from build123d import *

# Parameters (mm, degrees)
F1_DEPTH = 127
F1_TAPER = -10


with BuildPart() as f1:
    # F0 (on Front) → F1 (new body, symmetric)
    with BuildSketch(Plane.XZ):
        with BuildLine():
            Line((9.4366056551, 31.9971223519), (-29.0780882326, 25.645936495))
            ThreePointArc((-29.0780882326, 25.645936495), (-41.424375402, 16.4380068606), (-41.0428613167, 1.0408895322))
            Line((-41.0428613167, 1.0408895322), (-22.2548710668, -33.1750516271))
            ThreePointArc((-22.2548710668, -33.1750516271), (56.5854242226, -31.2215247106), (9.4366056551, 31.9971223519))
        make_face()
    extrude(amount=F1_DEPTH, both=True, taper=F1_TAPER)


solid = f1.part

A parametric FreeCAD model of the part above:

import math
import FreeCAD as App
import Part
import Sketcher
Q = App.Units.Quantity

doc = App.newDocument("Part")
body = doc.addObject("PartDesign::Body", "Body")

sketch1 = body.newObject("Sketcher::SketchObject", "Sketch")
sketch1.AttachmentSupport = (doc.getObject("XZ_Plane"), [""])
sketch1.MapMode = "FlatFace"
sketch1.addGeometry([
    Part.LineSegment(App.Vector(9.436606, 31.997122, 0), App.Vector(-29.078088, 25.645936, 0)),
    Part.ArcOfCircle(Part.Circle(App.Vector(-26.350969, 9.108215, 0), App.Vector(0, 0, 1), 16.761069), math.radians(99.363971), math.radians(208.77121)),
    Part.LineSegment(App.Vector(-41.042861, 1.04089, 0), App.Vector(-22.254871, -33.175052, 0)),
    Part.ArcOfCircle(Part.Circle(App.Vector(16.660012, -11.80687, 0), App.Vector(0, 0, 1), 44.395578), math.radians(-151.22879), math.radians(99.363971)),
], False)
sketch1.addConstraint([
    Sketcher.Constraint("Tangent", 0, 2, 1, 1),
    Sketcher.Constraint("Tangent", 1, 2, 2, 1),
    Sketcher.Constraint("Tangent", 2, 2, 3, 1),
    Sketcher.Constraint("Tangent", 3, 2, 0, 1),
    Sketcher.Constraint("Radius", 1, 16.761069),
    Sketcher.Constraint("Radius", 3, 44.395578),
    Sketcher.Constraint("DistanceX", 0, 2, 3, 3, 45.738101),
    Sketcher.Constraint("DistanceX", 1, 3, 2, 2, 4.096098),
    Sketcher.Constraint("DistanceX", 1, 3, -1, 1, 26.350969),
    Sketcher.Constraint("DistanceY", 3, 3, -1, 1, 11.80687),
])
pad1 = body.newObject("PartDesign::Pad", "Pad")
pad1.Profile = sketch1
pad1.Length = Q("10 in")
pad1.Midplane = True
pad1.TaperAngle = 10

doc.recompute()
